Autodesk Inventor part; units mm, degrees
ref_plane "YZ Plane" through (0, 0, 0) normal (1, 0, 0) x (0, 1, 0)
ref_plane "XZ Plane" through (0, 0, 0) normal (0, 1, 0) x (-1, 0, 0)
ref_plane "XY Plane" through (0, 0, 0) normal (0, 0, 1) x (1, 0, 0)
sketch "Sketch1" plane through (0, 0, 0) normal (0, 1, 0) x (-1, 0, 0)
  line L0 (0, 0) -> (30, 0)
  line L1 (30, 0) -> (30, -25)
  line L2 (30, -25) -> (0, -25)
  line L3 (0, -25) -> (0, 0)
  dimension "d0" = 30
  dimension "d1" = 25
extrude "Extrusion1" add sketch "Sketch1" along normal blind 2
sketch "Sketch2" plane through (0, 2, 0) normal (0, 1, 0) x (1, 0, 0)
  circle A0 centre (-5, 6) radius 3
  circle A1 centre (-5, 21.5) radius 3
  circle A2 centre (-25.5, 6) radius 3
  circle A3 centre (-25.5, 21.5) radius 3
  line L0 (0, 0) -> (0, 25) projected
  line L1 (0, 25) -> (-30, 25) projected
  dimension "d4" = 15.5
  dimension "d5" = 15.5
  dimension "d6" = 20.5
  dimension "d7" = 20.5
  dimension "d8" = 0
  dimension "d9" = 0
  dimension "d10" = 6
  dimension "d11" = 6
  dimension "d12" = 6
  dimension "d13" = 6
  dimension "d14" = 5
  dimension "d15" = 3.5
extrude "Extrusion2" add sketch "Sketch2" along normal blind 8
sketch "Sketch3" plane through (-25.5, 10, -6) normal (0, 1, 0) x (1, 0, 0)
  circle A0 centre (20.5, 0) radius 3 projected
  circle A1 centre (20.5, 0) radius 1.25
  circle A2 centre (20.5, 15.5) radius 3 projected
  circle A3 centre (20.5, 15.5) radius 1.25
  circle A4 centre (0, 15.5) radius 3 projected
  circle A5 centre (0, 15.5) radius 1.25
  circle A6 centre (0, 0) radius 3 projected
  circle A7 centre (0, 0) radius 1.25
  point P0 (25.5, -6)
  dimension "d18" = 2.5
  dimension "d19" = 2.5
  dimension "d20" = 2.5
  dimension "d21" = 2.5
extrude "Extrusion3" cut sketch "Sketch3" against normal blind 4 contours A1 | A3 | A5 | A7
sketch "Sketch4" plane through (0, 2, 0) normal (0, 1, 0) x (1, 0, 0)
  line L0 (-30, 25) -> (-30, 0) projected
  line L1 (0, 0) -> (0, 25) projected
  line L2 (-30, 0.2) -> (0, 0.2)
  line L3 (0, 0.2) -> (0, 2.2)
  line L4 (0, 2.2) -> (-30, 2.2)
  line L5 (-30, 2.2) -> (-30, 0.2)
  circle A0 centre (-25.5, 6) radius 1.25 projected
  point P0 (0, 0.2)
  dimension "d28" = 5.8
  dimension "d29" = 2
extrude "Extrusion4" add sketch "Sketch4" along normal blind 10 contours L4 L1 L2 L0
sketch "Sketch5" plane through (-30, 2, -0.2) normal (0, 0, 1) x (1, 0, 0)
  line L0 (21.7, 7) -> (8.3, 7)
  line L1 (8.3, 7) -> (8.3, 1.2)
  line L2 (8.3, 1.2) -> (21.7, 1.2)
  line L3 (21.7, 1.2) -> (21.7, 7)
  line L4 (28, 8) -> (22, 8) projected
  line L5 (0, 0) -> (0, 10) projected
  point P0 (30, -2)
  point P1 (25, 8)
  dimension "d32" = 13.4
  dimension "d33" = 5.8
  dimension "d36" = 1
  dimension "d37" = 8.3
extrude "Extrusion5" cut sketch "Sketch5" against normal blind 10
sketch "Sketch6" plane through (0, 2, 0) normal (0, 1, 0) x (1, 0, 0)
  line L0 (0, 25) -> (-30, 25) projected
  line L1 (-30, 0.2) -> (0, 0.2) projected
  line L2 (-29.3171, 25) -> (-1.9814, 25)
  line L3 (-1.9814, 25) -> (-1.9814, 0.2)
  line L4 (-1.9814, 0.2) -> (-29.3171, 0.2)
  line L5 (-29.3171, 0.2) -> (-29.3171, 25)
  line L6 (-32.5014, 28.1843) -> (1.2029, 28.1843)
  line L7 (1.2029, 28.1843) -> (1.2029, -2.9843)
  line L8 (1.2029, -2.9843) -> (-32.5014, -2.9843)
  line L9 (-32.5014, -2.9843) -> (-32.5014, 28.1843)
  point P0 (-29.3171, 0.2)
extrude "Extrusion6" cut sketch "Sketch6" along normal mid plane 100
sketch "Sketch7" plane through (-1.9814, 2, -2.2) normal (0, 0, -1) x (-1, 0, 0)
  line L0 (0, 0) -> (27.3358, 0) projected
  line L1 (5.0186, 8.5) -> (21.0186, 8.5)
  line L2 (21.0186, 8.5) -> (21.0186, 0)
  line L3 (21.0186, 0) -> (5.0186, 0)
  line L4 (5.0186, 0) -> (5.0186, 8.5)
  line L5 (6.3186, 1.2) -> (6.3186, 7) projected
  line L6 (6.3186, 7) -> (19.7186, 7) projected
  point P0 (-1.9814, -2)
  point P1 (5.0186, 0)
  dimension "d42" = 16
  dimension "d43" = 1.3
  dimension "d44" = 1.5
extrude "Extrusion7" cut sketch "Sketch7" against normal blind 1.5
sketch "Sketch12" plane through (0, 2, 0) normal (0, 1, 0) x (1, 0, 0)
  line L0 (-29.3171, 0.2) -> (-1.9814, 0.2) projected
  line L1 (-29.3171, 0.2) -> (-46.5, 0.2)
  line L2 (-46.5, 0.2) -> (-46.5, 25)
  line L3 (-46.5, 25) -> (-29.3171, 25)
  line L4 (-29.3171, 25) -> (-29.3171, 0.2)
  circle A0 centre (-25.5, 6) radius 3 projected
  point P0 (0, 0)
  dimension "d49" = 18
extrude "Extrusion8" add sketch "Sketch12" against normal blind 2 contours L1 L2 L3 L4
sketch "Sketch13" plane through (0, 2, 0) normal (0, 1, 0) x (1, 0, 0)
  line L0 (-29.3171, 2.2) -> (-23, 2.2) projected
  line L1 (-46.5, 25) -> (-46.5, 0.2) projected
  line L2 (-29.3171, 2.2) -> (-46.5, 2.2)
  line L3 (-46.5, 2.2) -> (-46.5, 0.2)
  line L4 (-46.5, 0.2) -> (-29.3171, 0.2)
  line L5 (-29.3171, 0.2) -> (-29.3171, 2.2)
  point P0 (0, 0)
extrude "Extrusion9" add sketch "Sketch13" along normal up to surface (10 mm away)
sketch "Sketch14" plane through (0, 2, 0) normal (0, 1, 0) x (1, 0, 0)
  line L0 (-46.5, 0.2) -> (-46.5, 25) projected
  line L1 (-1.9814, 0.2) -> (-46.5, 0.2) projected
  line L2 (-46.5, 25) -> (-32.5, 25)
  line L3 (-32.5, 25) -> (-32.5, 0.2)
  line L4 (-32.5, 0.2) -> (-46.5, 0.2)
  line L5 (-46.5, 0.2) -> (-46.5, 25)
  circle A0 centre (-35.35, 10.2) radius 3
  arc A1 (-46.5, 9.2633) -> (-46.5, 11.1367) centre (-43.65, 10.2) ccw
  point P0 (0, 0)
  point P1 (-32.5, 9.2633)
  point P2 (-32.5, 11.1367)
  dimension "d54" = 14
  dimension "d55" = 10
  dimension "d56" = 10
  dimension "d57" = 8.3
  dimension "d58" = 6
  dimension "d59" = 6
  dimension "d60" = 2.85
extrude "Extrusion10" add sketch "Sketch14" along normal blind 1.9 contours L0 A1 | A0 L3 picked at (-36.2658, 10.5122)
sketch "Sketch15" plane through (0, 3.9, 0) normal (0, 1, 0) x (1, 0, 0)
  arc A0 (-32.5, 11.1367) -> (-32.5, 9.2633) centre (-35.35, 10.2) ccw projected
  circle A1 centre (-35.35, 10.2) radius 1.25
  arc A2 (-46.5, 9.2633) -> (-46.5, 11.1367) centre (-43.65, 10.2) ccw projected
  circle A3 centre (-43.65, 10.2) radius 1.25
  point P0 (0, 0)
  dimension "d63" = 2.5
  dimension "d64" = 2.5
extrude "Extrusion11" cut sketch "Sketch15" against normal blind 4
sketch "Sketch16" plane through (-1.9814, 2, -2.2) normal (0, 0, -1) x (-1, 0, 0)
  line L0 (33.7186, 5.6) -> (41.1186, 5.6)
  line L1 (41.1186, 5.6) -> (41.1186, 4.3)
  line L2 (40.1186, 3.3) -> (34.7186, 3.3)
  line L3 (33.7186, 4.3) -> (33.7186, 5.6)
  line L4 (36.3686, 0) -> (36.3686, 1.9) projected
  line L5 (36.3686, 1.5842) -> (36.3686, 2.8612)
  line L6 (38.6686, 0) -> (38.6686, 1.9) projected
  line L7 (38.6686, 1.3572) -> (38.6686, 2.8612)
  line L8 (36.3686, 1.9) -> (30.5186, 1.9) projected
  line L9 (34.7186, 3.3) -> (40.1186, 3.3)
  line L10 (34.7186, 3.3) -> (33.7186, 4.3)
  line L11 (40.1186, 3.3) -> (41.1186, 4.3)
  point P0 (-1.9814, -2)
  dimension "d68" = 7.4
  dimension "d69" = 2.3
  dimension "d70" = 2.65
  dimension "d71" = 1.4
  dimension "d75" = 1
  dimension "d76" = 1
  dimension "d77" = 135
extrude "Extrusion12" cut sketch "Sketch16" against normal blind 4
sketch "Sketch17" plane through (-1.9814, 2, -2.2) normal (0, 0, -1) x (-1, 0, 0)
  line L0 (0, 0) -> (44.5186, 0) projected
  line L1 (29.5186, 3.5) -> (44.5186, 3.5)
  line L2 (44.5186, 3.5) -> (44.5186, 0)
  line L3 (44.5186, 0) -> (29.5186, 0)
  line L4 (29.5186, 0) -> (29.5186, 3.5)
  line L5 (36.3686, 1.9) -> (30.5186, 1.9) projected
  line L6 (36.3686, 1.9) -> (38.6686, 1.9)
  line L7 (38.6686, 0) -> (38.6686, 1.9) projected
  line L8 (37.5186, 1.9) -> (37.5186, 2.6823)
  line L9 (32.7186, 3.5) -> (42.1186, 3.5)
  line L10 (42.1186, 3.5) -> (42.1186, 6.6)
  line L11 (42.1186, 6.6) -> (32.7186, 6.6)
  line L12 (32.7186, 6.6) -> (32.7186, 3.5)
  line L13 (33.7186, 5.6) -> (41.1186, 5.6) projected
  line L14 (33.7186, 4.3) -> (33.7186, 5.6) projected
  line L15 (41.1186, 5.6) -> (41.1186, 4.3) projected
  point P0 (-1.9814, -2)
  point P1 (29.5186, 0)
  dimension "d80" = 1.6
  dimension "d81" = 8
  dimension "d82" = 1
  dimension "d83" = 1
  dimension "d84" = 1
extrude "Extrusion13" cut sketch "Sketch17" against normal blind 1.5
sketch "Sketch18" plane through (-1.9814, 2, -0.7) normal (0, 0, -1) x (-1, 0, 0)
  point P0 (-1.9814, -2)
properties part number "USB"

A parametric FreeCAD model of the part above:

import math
import FreeCAD as App
import Part
import Sketcher

V = App.Vector

doc = App.newDocument("Part")
body = doc.addObject("PartDesign::Body", "Body")

# Sketch on XZ plane
sketch1 = body.newObject("Sketcher::SketchObject", "Sketch")
sketch1.AttachmentSupport = (doc.getObject("XZ_Plane"), [""])
sketch1.MapMode = "FlatFace"
sketch1.addGeometry([
    Part.LineSegment(V(-30, 0, 0), V(0, 0, 0)),
    Part.LineSegment(V(0, 0, 0), V(0, -25, 0)),
    Part.LineSegment(V(0, -25, 0), V(-30, -25, 0)),
    Part.LineSegment(V(-30, -25, 0), V(-30, 0, 0)),
], False)
sketch1.addConstraint([
    Sketcher.Constraint("Coincident", 0, 2, 1, 1),
    Sketcher.Constraint("Coincident", 1, 2, 2, 1),
    Sketcher.Constraint("Coincident", 2, 2, 3, 1),
    Sketcher.Constraint("Coincident", 3, 2, 0, 1),
    Sketcher.Constraint("Horizontal", 0),
    Sketcher.Constraint("Vertical", 1),
    Sketcher.Constraint("Horizontal", 2),
    Sketcher.Constraint("Vertical", 3),
    Sketcher.Constraint("Coincident", 0, 2, -1, 1),
    Sketcher.Constraint("DistanceX", 0, 1, 0, 2, 30.0),
    Sketcher.Constraint("DistanceY", 1, 2, 1, 1, 25.0),
])
pad1 = body.newObject("PartDesign::Pad", "Pad")
pad1.Profile = sketch1
pad1.Length = 2
pad1.Reversed = True

# Sketch on XZ plane
sketch2 = body.newObject("Sketcher::SketchObject", "Sketch001")
sketch2.AttachmentSupport = (doc.getObject("XZ_Plane"), [""])
sketch2.MapMode = "FlatFace"
sketch2.AttachmentOffset = App.Placement(V(0, 0, -2), App.Rotation())
sketch2.addGeometry([
    Part.Circle(V(-5, -6, 0), V(0, 0, 1), 3),
    Part.Circle(V(-5, -21.5, 0), V(0, 0, 1), 3),
    Part.Circle(V(-25.5, -6, 0), V(0, 0, 1), 3),
    Part.Circle(V(-25.5, -21.5, 0), V(0, 0, 1), 3),
], False)
sketch2.addConstraint([
    Sketcher.Constraint("Equal", 0, 1),
    Sketcher.Constraint("Equal", 1, 2),
    Sketcher.Constraint("Equal", 2, 3),
    Sketcher.Constraint("Horizontal", 0, 3, 2, 3),
    Sketcher.Constraint("Horizontal", 1, 3, 3, 3),
    Sketcher.Constraint("Vertical", 0, 3, 1, 3),
    Sketcher.Constraint("Vertical", 2, 3, 3, 3),
    Sketcher.Constraint("Diameter", 0, 6.0),
    Sketcher.Constraint("DistanceX", 0, 3, -1, 1, 5.0),
    Sketcher.Constraint("DistanceY", 0, 3, -1, 1, 6.0),
    Sketcher.Constraint("DistanceY", 1, 3, 0, 3, 15.5),
    Sketcher.Constraint("DistanceX", 2, 3, 0, 3, 20.5),
])
pad2 = body.newObject("PartDesign::Pad", "Pad001")
pad2.Profile = sketch2
pad2.Length = 8
pad2.Reversed = True

# Sketch on XZ plane
sketch3 = body.newObject("Sketcher::SketchObject", "Sketch002")
sketch3.AttachmentSupport = (doc.getObject("XZ_Plane"), [""])
sketch3.MapMode = "FlatFace"
sketch3.AttachmentOffset = App.Placement(V(0, 0, -10), App.Rotation())
sketch3.addGeometry([
    Part.Circle(V(-5, -6, 0), V(0, 0, 1), 1.25),
    Part.Circle(V(-5, -21.5, 0), V(0, 0, 1), 1.25),
    Part.Circle(V(-25.5, -21.5, 0), V(0, 0, 1), 1.25),
    Part.Circle(V(-25.5, -6, 0), V(0, 0, 1), 1.25),
], False)
sketch3.addConstraint([
    Sketcher.Constraint("Equal", 0, 1),
    Sketcher.Constraint("Equal", 1, 2),
    Sketcher.Constraint("Equal", 2, 3),
    Sketcher.Constraint("Horizontal", 1, 3, 2, 3),
    Sketcher.Constraint("Horizontal", 0, 3, 3, 3),
    Sketcher.Constraint("Vertical", 0, 3, 1, 3),
    Sketcher.Constraint("Vertical", 2, 3, 3, 3),
    Sketcher.Constraint("Diameter", 0, 2.5),
    Sketcher.Constraint("DistanceX", 0, 3, -1, 1, 5.0),
    Sketcher.Constraint("DistanceY", 0, 3, -1, 1, 6.0),
    Sketcher.Constraint("DistanceY", 1, 3, -1, 1, 21.5),
    Sketcher.Constraint("DistanceX", 2, 3, -1, 1, 25.5),
])
pocket1 = body.newObject("PartDesign::Pocket", "Pocket")
pocket1.Profile = sketch3
pocket1.Length = 4
pocket1.Reversed = True

# Sketch on XZ plane
sketch4 = body.newObject("Sketcher::SketchObject", "Sketch003")
sketch4.AttachmentSupport = (doc.getObject("XZ_Plane"), [""])
sketch4.MapMode = "FlatFace"
sketch4.AttachmentOffset = App.Placement(V(0, 0, -2), App.Rotation())
sketch4.addGeometry([
    Part.LineSegment(V(0, -2.2, 0), V(-30, -2.2, 0)),
    Part.LineSegment(V(-30, -2.2, 0), V(-30, -0.2, 0)),
    Part.LineSegment(V(-30, -0.2, 0), V(0, -0.2, 0)),
    Part.LineSegment(V(0, -0.2, 0), V(0, -2.2, 0)),
], False)
sketch4.addConstraint([
    Sketcher.Constraint("Coincident", 0, 2, 1, 1),
    Sketcher.Constraint("Coincident", 1, 2, 2, 1),
    Sketcher.Constraint("Coincident", 2, 2, 3, 1),
    Sketcher.Constraint("Coincident", 3, 2, 0, 1),
    Sketcher.Constraint("Horizontal", 0),
    Sketcher.Constraint("Vertical", 1),
    Sketcher.Constraint("Horizontal", 2),
    Sketcher.Constraint("Vertical", 3),
    Sketcher.Constraint("PointOnObject", 2, 2, -2),
    Sketcher.Constraint("DistanceY", 1, 1, 1, 2, 2.0),
    Sketcher.Constraint("DistanceX", 0, 2, 0, 1, 30.0),
    Sketcher.Constraint("DistanceY", 0, 2, -1, 1, 2.2),
])
pad3 = body.newObject("PartDesign::Pad", "Pad002")
pad3.Profile = sketch4
pad3.Length = 10
pad3.Reversed = True

# Sketch on XY plane
sketch5 = body.newObject("Sketcher::SketchObject", "Sketch004")
sketch5.AttachmentSupport = (doc.getObject("XY_Plane"), [""])
sketch5.MapMode = "FlatFace"
sketch5.AttachmentOffset = App.Placement(V(0, 0, -0.2), App.Rotation())
sketch5.addGeometry([
    Part.LineSegment(V(-8.3, 3.2, 0), V(-8.3, 9, 0)),
    Part.LineSegment(V(-8.3, 9, 0), V(-21.7, 9, 0)),
    Part.LineSegment(V(-21.7, 9, 0), V(-21.7, 3.2, 0)),
    Part.LineSegment(V(-21.7, 3.2, 0), V(-8.3, 3.2, 0)),
], False)
sketch5.addConstraint([
    Sketcher.Constraint("Coincident", 0, 2, 1, 1),
    Sketcher.Constraint("Coincident", 1, 2, 2, 1),
    Sketcher.Constraint("Coincident", 2, 2, 3, 1),
    Sketcher.Constraint("Coincident", 3, 2, 0, 1),
    Sketcher.Constraint("Vertical", 0),
    Sketcher.Constraint("Horizontal", 1),
    Sketcher.Constraint("Vertical", 2),
    Sketcher.Constraint("Horizontal", 3),
    Sketcher.Constraint("DistanceX", 1, 2, 1, 1, 13.4),
    Sketcher.Constraint("DistanceY", 0, 1, 0, 2, 5.8),
    Sketcher.Constraint("DistanceX", 0, 2, -1, 1, 8.3),
    Sketcher.Constraint("DistanceY", -1, 1, 0, 2, 9.0),
])
pocket2 = body.newObject("PartDesign::Pocket", "Pocket001")
pocket2.Profile = sketch5
pocket2.Length = 10

# Sketch on XZ plane
sketch6 = body.newObject("Sketcher::SketchObject", "Sketch005")
sketch6.AttachmentSupport = (doc.getObject("XZ_Plane"), [""])
sketch6.MapMode = "FlatFace"
sketch6.AttachmentOffset = App.Placement(V(0, 0, -2), App.Rotation())
sketch6.addGeometry([
    Part.LineSegment(V(1.2029, -28.1843, 0), V(-32.5014, -28.1843, 0)),  # 0
    Part.LineSegment(V(-32.5014, -28.1843, 0), V(-32.5014, 2.9843, 0)),  # 1
    Part.LineSegment(V(-32.5014, 2.9843, 0), V(1.2029, 2.9843, 0)),  # 2
    Part.LineSegment(V(1.2029, 2.9843, 0), V(1.2029, -28.1843, 0)),  # 3
    Part.LineSegment(V(-29.3171, -25, 0), V(-1.9814, -25, 0)),  # 4
    Part.LineSegment(V(-1.9814, -25, 0), V(-1.9814, -0.2, 0)),  # 5
    Part.LineSegment(V(-1.9814, -0.2, 0), V(-29.3171, -0.2, 0)),  # 6
    Part.LineSegment(V(-29.3171, -0.2, 0), V(-29.3171, -25, 0)),  # 7
], False)
sketch6.addConstraint([
    Sketcher.Constraint("Coincident", 0, 2, 1, 1),
    Sketcher.Constraint("Coincident", 1, 2, 2, 1),
    Sketcher.Constraint("Coincident", 2, 2, 3, 1),
    Sketcher.Constraint("Coincident", 3, 2, 0, 1),
    Sketcher.Constraint("Coincident", 4, 2, 5, 1),
    Sketcher.Constraint("Coincident", 5, 2, 6, 1),
    Sketcher.Constraint("Coincident", 6, 2, 7, 1),
    Sketcher.Constraint("Coincident", 7, 2, 4, 1),
    Sketcher.Constraint("Horizontal", 0),
    Sketcher.Constraint("Vertical", 1),
    Sketcher.Constraint("Horizontal", 2),
    Sketcher.Constraint("Vertical", 3),
    Sketcher.Constraint("Horizontal", 4),
    Sketcher.Constraint("Vertical", 5),
    Sketcher.Constraint("Horizontal", 6),
    Sketcher.Constraint("Vertical", 7),
    Sketcher.Constraint("DistanceY", 5, 1, 5, 2, 24.8),
    Sketcher.Constraint("DistanceY", 4, 2, -1, 1, 25.0),
    Sketcher.Constraint("DistanceX", 0, 2, 4, 2, 30.52),
    Sketcher.Constraint("DistanceX", 6, 2, 2, 2, 30.52),
    Sketcher.Constraint("DistanceX", 0, 2, 0, 1, 33.7043),
    Sketcher.Constraint("DistanceY", 1, 1, 1, 2, 31.1686),
    Sketcher.Constraint("DistanceX", -1, 1, 2, 2, 1.203),
    Sketcher.Constraint("DistanceY", 0, 2, -1, 1, 28.1843),
])
pocket3 = body.newObject("PartDesign::Pocket", "Pocket002")
pocket3.Profile = sketch6
pocket3.Length = 100
pocket3.Midplane = True

# Sketch on XY plane
sketch7 = body.newObject("Sketcher::SketchObject", "Sketch006")
sketch7.AttachmentSupport = (doc.getObject("XY_Plane"), [""])
sketch7.MapMode = "FlatFace"
sketch7.AttachmentOffset = App.Placement(V(0, 0, -2.2), App.Rotation())
sketch7.addGeometry([
    Part.LineSegment(V(-7, 10.5, 0), V(-7, 2, 0)),
    Part.LineSegment(V(-7, 2, 0), V(-23, 2, 0)),
    Part.LineSegment(V(-23, 2, 0), V(-23, 10.5, 0)),
    Part.LineSegment(V(-23, 10.5, 0), V(-7, 10.5, 0)),
], False)
sketch7.addConstraint([
    Sketcher.Constraint("Coincident", 0, 2, 1, 1),
    Sketcher.Constraint("Coincident", 1, 2, 2, 1),
    Sketcher.Constraint("Coincident", 2, 2, 3, 1),
    Sketcher.Constraint("Coincident", 3, 2, 0, 1),
    Sketcher.Constraint("Vertical", 0),
    Sketcher.Constraint("Horizontal", 1),
    Sketcher.Constraint("Vertical", 2),
    Sketcher.Constraint("Horizontal", 3),
    Sketcher.Constraint("DistanceX", 1, 2, 1, 1, 16.0),
    Sketcher.Constraint("DistanceY", 0, 2, 0, 1, 8.5),
    Sketcher.Constraint("DistanceX", 0, 2, -1, 1, 7.0),
    Sketcher.Constraint("DistanceY", -1, 1, 0, 2, 2.0),
])
pocket4 = body.newObject("PartDesign::Pocket", "Pocket003")
pocket4.Profile = sketch7
pocket4.Length = 1.5
pocket4.Reversed = True

# Sketch on XZ plane
sketch8 = body.newObject("Sketcher::SketchObject", "Sketch007")
sketch8.AttachmentSupport = (doc.getObject("XZ_Plane"), [""])
sketch8.MapMode = "FlatFace"
sketch8.AttachmentOffset = App.Placement(V(0, 0, -2), App.Rotation())
sketch8.addGeometry([
    Part.LineSegment(V(-46.5, -0.2, 0), V(-29.3171, -0.2, 0)),
    Part.LineSegment(V(-29.3171, -0.2, 0), V(-29.3171, -25, 0)),
    Part.LineSegment(V(-29.3171, -25, 0), V(-46.5, -25, 0)),
    Part.LineSegment(V(-46.5, -25, 0), V(-46.5, -0.2, 0)),
], False)
sketch8.addConstraint([
    Sketcher.Constraint("Coincident", 0, 2, 1, 1),
    Sketcher.Constraint("Coincident", 1, 2, 2, 1),
    Sketcher.Constraint("Coincident", 2, 2, 3, 1),
    Sketcher.Constraint("Coincident", 3, 2, 0, 1),
    Sketcher.Constraint("Horizontal", 0),
    Sketcher.Constraint("Vertical", 1),
    Sketcher.Constraint("Horizontal", 2),
    Sketcher.Constraint("Vertical", 3),
    Sketcher.Constraint("DistanceY", 1, 2, 1, 1, 24.8),
    Sketcher.Constraint("DistanceY", 1, 2, -1, 1, 25.0),
    Sketcher.Constraint("DistanceX", 2, 2, -1, 1, 46.5),
    Sketcher.Constraint("DistanceX", 0, 1, 0, 2, 17.183),
])
pad4 = body.newObject("PartDesign::Pad", "Pad003")
pad4.Profile = sketch8
pad4.Length = 2

# Sketch on XZ plane
sketch9 = body.newObject("Sketcher::SketchObject", "Sketch008")
sketch9.AttachmentSupport = (doc.getObject("XZ_Plane"), [""])
sketch9.MapMode = "FlatFace"
sketch9.AttachmentOffset = App.Placement(V(0, 0, -2), App.Rotation())
sketch9.addGeometry([
    Part.LineSegment(V(-29.3171, -2.2, 0), V(-46.5, -2.2, 0)),
    Part.LineSegment(V(-46.5, -2.2, 0), V(-46.5, -0.2, 0)),
    Part.LineSegment(V(-46.5, -0.2, 0), V(-29.3171, -0.2, 0)),
    Part.LineSegment(V(-29.3171, -0.2, 0), V(-29.3171, -2.2, 0)),
], False)
sketch9.addConstraint([
    Sketcher.Constraint("Coincident", 0, 2, 1, 1),
    Sketcher.Constraint("Coincident", 1, 2, 2, 1),
    Sketcher.Constraint("Coincident", 2, 2, 3, 1),
    Sketcher.Constraint("Coincident", 3, 2, 0, 1),
    Sketcher.Constraint("Horizontal", 0),
    Sketcher.Constraint("Vertical", 1),
    Sketcher.Constraint("Horizontal", 2),
    Sketcher.Constraint("Vertical", 3),
    Sketcher.Constraint("DistanceY", 1, 1, 1, 2, 2.0),
    Sketcher.Constraint("DistanceX", 0, 2, -1, 1, 46.5),
    Sketcher.Constraint("DistanceY", 0, 2, -1, 1, 2.2),
    Sketcher.Constraint("DistanceX", 0, 2, 0, 1, 17.183),
])
pad5 = body.newObject("PartDesign::Pad", "Pad004")
pad5.Profile = sketch9
pad5.Length = 10
pad5.Reversed = True

# Sketch on XZ plane
sketch10 = body.newObject("Sketcher::SketchObject", "Sketch009")
sketch10.AttachmentSupport = (doc.getObject("XZ_Plane"), [""])
sketch10.MapMode = "FlatFace"
sketch10.AttachmentOffset = App.Placement(V(0, 0, -2), App.Rotation())
sketch10.addGeometry([
    Part.LineSegment(V(-46.5, -11.1367, 0), V(-46.5, -9.2633, 0)),
    Part.ArcOfCircle(Part.Circle(V(-43.65, -10.2, 0), V(0, 0, 1), 2.999984), math.radians(-161.806029), math.radians(161.806029)),
    Part.ArcOfCircle(Part.Circle(V(-35.35, -10.2, 0), V(0, 0, 1), 3), math.radians(18.194872), math.radians(341.805128)),
    Part.LineSegment(V(-32.5, -9.26325, 0), V(-32.5, -11.13675, 0)),
], False)
sketch10.addConstraint([
    Sketcher.Constraint("Coincident", 0, 1, 1, 1),
    Sketcher.Constraint("Coincident", 1, 2, 0, 2),
    Sketcher.Constraint("Coincident", 2, 1, 3, 1),
    Sketcher.Constraint("Coincident", 3, 2, 2, 2),
    Sketcher.Constraint("Vertical", 0),
    Sketcher.Constraint("Vertical", 3),
    Sketcher.Constraint("Equal", 1, 2),
    Sketcher.Constraint("Horizontal", 1, 3, 2, 3),
    Sketcher.Constraint("Horizontal", 1, 2, 2, 1),
    Sketcher.Constraint("Radius", 1, 3.0),
    Sketcher.Constraint("DistanceX", 1, 2, 2, 1, 14.0),
    Sketcher.Constraint("DistanceX", 1, 3, 2, 3, 8.3),
    Sketcher.Constraint("DistanceY", 1, 3, -1, 1, 10.2),
    Sketcher.Constraint("DistanceX", 0, 1, -1, 1, 46.5),
])
pad6 = body.newObject("PartDesign::Pad", "Pad005")
pad6.Profile = sketch10
pad6.Length = 1.9
pad6.Reversed = True

# Sketch on XZ plane
sketch11 = body.newObject("Sketcher::SketchObject", "Sketch010")
sketch11.AttachmentSupport = (doc.getObject("XZ_Plane"), [""])
sketch11.MapMode = "FlatFace"
sketch11.AttachmentOffset = App.Placement(V(0, 0, -3.9), App.Rotation())
sketch11.addGeometry([
    Part.Circle(V(-35.35, -10.2, 0), V(0, 0, 1), 1.25),
    Part.Circle(V(-43.65, -10.2, 0), V(0, 0, 1), 1.25),
], False)
sketch11.addConstraint([
    Sketcher.Constraint("Equal", 0, 1),
    Sketcher.Constraint("Horizontal", 0, 3, 1, 3),
    Sketcher.Constraint("Diameter", 0, 2.5),
    Sketcher.Constraint("DistanceY", 0, 3, -1, 1, 10.2),
    Sketcher.Constraint("DistanceX", 1, 3, 0, 3, 8.3),
    Sketcher.Constraint("DistanceX", 0, 3, -1, 1, 35.35),
])
pocket5 = body.newObject("PartDesign::Pocket", "Pocket004")
pocket5.Profile = sketch11
pocket5.Length = 4
pocket5.Reversed = True

# Sketch on XY plane
sketch12 = body.newObject("Sketcher::SketchObject", "Sketch011")
sketch12.AttachmentSupport = (doc.getObject("XY_Plane"), [""])
sketch12.MapMode = "FlatFace"
sketch12.AttachmentOffset = App.Placement(V(0, 0, -2.2), App.Rotation())
sketch12.addGeometry([
    Part.LineSegment(V(-43.1, 7.6, 0), V(-35.7, 7.6, 0)),  # 0
    Part.LineSegment(V(-35.7, 7.6, 0), V(-35.7, 6.3, 0)),  # 1
    Part.LineSegment(V(-35.7, 6.3, 0), V(-36.7, 5.3, 0)),  # 2
    Part.LineSegment(V(-36.7, 5.3, 0), V(-42.1, 5.3, 0)),  # 3
    Part.LineSegment(V(-42.1, 5.3, 0), V(-43.1, 6.3, 0)),  # 4
    Part.LineSegment(V(-43.1, 6.3, 0), V(-43.1, 7.6, 0)),  # 5
], False)
sketch12.addConstraint([
    Sketcher.Constraint("Coincident", 0, 2, 1, 1),
    Sketcher.Constraint("Coincident", 1, 2, 2, 1),
    Sketcher.Constraint("Coincident", 2, 2, 3, 1),
    Sketcher.Constraint("Coincident", 3, 2, 4, 1),
    Sketcher.Constraint("Coincident", 4, 2, 5, 1),
    Sketcher.Constraint("Coincident", 5, 2, 0, 1),
    Sketcher.Constraint("Horizontal", 0),
    Sketcher.Constraint("Vertical", 1),
    Sketcher.Constraint("Horizontal", 3),
    Sketcher.Constraint("Vertical", 5),
    Sketcher.Constraint("Perpendicular", 2, 4),
    Sketcher.Constraint("Horizontal", 1, 2, 4, 2),
    Sketcher.Constraint("Equal", 2, 4),
    Sketcher.Constraint("DistanceX", 0, 1, 0, 2, 7.4),
    Sketcher.Constraint("DistanceX", 2, 2, 1, 2, 1.0),
    Sketcher.Constraint("DistanceY", 2, 2, 0, 2, 2.3),
    Sketcher.Constraint("DistanceX", 0, 2, -1, 1, 35.7),
    Sketcher.Constraint("DistanceY", -1, 1, 0, 2, 7.6),
])
pocket6 = body.newObject("PartDesign::Pocket", "Pocket005")
pocket6.Profile = sketch12
pocket6.Length = 4
pocket6.Reversed = True

# Sketch on XY plane
sketch13 = body.newObject("Sketcher::SketchObject", "Sketch012")
sketch13.AttachmentSupport = (doc.getObject("XY_Plane"), [""])
sketch13.MapMode = "FlatFace"
sketch13.AttachmentOffset = App.Placement(V(0, 0, -2.2), App.Rotation())
sketch13.addGeometry([
    Part.LineSegment(V(-31.5, 5.5, 0), V(-31.5, 2, 0)),  # 0
    Part.LineSegment(V(-31.5, 2, 0), V(-46.5, 2, 0)),  # 1
    Part.LineSegment(V(-46.5, 2, 0), V(-46.5, 5.5, 0)),  # 2
    Part.LineSegment(V(-46.5, 5.5, 0), V(-44.1, 5.5, 0)),  # 3
    Part.LineSegment(V(-44.1, 5.5, 0), V(-44.1, 8.6, 0)),  # 4
    Part.LineSegment(V(-44.1, 8.6, 0), V(-34.7, 8.6, 0)),  # 5
    Part.LineSegment(V(-34.7, 8.6, 0), V(-34.7, 5.5, 0)),  # 6
    Part.LineSegment(V(-34.7, 5.5, 0), V(-31.5, 5.5, 0)),  # 7
], False)
sketch13.addConstraint([
    Sketcher.Constraint("Coincident", 0, 2, 1, 1),
    Sketcher.Constraint("Coincident", 1, 2, 2, 1),
    Sketcher.Constraint("Coincident", 2, 2, 3, 1),
    Sketcher.Constraint("Coincident", 3, 2, 4, 1),
    Sketcher.Constraint("Coincident", 4, 2, 5, 1),
    Sketcher.Constraint("Coincident", 5, 2, 6, 1),
    Sketcher.Constraint("Coincident", 6, 2, 7, 1),
    Sketcher.Constraint("Coincident", 7, 2, 0, 1),
    Sketcher.Constraint("Vertical", 0),
    Sketcher.Constraint("Horizontal", 1),
    Sketcher.Constraint("Vertical", 2),
    Sketcher.Constraint("Horizontal", 3),
    Sketcher.Constraint("Vertical", 4),
    Sketcher.Constraint("Horizontal", 5),
    Sketcher.Constraint("Vertical", 6),
    Sketcher.Constraint("Horizontal", 7),
    Sketcher.Constraint("Horizontal", 3, 2, 6, 2),
    Sketcher.Constraint("DistanceX", 1, 2, 1, 1, 15.0),
    Sketcher.Constraint("DistanceX", 3, 1, 3, 2, 2.4),
    Sketcher.Constraint("DistanceX", 5, 1, 5, 2, 9.4),
    Sketcher.Constraint("DistanceY", 0, 2, 0, 1, 3.5),
    Sketcher.Constraint("DistanceY", 4, 1, 4, 2, 3.1),
    Sketcher.Constraint("DistanceY", -1, 1, 0, 2, 2.0),
    Sketcher.Constraint("DistanceX", 0, 2, -1, 1, 31.5),
])
pocket7 = body.newObject("PartDesign::Pocket", "Pocket006")
pocket7.Profile = sketch13
pocket7.Length = 1.5
pocket7.Reversed = True

doc.recompute()
